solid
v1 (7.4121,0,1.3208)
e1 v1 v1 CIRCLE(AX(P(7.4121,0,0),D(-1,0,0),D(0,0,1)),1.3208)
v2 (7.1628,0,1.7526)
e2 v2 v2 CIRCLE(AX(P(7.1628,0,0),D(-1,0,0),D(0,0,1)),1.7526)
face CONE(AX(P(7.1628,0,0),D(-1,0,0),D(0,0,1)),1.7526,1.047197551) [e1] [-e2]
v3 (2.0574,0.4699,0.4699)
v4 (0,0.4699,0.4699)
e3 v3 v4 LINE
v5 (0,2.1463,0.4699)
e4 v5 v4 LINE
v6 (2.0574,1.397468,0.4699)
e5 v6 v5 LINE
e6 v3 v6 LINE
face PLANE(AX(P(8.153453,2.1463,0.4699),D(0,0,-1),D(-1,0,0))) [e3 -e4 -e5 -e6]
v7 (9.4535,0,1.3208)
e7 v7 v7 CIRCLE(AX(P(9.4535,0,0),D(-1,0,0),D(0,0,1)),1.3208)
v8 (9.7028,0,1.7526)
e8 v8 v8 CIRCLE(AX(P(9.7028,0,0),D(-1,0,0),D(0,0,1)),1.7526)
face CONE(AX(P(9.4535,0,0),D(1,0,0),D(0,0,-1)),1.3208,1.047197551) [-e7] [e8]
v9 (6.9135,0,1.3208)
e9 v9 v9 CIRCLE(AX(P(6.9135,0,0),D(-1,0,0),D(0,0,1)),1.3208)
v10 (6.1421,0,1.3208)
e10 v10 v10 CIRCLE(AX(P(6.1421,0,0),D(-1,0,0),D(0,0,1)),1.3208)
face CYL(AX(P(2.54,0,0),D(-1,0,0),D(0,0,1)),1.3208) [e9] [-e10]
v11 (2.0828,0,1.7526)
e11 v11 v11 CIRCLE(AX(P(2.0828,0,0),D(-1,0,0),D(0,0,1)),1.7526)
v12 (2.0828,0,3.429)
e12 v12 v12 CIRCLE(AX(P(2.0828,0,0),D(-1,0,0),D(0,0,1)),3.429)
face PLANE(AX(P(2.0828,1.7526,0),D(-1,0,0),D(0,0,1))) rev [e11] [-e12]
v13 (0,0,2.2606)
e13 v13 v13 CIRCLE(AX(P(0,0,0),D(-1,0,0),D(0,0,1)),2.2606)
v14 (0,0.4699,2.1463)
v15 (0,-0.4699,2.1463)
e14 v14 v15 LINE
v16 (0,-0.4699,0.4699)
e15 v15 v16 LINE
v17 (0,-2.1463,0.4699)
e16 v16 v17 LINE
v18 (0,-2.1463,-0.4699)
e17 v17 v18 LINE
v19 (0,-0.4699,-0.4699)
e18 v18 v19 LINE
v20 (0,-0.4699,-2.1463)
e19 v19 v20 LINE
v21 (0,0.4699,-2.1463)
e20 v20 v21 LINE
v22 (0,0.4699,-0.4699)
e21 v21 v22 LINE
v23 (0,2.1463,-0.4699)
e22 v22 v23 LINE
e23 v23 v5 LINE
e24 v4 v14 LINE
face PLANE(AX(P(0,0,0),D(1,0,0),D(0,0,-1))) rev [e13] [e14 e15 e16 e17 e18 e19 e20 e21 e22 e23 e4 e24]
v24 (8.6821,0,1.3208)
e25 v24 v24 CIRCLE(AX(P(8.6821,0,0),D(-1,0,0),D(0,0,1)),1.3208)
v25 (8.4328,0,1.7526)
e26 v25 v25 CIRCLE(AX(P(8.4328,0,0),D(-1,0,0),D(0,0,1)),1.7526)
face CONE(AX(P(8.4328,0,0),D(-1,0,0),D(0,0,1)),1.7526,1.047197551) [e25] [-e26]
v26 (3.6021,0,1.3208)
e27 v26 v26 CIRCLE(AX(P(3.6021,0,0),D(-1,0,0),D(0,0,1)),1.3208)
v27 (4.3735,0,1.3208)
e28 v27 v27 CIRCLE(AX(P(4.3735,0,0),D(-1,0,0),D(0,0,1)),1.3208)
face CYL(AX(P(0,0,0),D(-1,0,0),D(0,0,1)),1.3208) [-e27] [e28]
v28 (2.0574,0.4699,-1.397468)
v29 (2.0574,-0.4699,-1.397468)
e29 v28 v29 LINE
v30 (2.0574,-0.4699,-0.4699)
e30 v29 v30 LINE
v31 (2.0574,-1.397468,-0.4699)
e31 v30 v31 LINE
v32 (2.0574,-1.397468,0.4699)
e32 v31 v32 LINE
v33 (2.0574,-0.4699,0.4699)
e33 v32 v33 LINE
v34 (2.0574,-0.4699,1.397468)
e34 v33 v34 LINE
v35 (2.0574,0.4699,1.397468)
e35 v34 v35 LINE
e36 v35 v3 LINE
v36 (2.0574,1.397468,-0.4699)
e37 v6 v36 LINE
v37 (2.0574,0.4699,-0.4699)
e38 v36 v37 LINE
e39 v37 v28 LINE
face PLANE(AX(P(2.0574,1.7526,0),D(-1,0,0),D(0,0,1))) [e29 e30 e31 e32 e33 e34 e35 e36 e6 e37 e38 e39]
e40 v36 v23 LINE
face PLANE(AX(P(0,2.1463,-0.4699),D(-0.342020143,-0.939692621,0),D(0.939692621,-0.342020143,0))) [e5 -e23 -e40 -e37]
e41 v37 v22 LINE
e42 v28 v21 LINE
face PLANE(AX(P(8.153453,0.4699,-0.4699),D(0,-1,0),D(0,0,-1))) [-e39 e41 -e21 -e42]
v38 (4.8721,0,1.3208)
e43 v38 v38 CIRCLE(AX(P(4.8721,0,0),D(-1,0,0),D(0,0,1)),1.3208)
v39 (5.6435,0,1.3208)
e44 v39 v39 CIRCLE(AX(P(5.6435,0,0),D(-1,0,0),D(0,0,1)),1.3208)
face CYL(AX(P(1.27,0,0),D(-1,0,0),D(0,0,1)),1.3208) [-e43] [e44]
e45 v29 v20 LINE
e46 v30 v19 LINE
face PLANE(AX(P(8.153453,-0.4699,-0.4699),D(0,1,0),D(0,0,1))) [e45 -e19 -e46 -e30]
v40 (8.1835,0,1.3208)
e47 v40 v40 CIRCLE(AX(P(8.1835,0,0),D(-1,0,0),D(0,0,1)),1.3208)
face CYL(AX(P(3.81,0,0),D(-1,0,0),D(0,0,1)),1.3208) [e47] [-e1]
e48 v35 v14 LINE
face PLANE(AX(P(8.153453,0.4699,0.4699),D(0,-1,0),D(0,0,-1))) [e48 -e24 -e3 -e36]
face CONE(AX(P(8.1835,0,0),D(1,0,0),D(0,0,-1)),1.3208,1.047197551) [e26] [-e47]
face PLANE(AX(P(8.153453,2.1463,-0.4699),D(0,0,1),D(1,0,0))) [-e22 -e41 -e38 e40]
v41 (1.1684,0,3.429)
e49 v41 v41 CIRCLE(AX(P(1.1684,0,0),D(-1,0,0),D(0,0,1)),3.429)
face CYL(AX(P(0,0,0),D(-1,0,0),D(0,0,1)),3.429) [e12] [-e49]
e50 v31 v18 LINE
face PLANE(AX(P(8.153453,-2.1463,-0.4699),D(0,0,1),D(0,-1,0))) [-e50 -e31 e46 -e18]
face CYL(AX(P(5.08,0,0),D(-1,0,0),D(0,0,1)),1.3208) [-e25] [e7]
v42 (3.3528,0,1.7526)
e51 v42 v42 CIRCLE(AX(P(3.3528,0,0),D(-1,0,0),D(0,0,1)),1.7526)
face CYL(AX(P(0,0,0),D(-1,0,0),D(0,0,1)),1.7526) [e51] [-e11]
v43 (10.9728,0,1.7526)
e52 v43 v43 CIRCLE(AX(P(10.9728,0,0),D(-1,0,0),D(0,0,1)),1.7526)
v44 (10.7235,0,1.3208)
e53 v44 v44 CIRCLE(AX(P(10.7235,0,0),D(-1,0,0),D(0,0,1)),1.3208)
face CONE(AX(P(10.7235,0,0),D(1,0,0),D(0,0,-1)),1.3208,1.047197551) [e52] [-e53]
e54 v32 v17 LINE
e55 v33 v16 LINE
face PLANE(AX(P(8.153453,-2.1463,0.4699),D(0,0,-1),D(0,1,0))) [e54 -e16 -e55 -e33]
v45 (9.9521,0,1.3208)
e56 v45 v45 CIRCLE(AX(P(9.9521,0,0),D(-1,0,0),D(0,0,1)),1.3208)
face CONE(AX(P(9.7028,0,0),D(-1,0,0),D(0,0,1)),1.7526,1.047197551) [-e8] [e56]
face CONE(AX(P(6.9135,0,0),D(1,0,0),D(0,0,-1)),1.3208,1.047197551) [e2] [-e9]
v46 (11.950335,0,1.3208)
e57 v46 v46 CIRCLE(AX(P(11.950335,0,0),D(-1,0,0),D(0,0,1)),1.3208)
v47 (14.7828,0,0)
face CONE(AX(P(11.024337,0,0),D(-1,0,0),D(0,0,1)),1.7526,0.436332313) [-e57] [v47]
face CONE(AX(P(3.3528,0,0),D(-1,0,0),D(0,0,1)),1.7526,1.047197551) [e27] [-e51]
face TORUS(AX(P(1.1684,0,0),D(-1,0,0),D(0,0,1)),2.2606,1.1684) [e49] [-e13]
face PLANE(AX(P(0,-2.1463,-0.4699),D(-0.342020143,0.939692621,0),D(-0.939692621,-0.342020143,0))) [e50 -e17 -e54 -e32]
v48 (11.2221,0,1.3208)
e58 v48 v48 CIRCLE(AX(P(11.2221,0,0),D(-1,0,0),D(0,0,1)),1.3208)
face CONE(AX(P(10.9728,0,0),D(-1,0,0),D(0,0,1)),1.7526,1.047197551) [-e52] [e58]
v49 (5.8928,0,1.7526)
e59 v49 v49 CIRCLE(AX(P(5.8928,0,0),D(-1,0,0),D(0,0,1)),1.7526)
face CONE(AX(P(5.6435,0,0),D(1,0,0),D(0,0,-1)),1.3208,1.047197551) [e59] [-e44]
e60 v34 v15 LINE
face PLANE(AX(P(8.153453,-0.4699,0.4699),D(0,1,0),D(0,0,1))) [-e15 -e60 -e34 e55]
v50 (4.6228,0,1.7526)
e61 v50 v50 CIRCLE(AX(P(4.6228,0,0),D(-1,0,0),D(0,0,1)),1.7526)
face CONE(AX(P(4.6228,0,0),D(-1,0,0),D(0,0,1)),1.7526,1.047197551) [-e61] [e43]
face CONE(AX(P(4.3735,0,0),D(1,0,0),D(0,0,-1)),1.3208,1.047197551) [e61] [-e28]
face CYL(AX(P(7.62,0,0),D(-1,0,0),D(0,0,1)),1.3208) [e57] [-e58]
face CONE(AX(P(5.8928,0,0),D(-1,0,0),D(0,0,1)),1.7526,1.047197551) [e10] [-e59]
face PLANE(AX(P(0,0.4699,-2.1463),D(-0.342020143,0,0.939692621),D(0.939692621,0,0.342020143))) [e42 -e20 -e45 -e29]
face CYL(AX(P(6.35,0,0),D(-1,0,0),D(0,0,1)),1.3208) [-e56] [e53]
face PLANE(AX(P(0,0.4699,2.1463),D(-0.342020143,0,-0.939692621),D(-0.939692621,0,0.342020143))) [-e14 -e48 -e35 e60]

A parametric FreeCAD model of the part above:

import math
import FreeCAD as App
import Part
import Sketcher
Q = App.Units.Quantity


def faces_at(feature, points):
    """Names of the faces that lie closest to the given points."""
    faces = feature.Shape.Faces
    near = lambda p: min(range(len(faces)), key=lambda i: faces[i].distToShape(Part.Vertex(*p))[0])
    return sorted({f"Face{near(p) + 1}" for p in points})


def add_polygon(sketch, points):
    """Adds a closed chain of lines whose ends are joined by coincident constraints."""
    first, n = sketch.GeometryCount, len(points)
    for a, b in zip(points, points[1:] + points[:1]):
        sketch.addGeometry(Part.LineSegment(App.Vector(*a, 0), App.Vector(*b, 0)), False)
    for i in range(n):
        sketch.addConstraint(Sketcher.Constraint("Coincident", first + i, 2, first + (i + 1) % n, 1))

doc = App.newDocument("Part")
body = doc.addObject("PartDesign::Body", "Body")

sketch1 = body.newObject("Sketcher::SketchObject", "Sketch")
sketch1.AttachmentSupport = (doc.getObject("XY_Plane"), [""])
sketch1.MapMode = "FlatFace"
sketch1.addGeometry([
    Part.LineSegment(App.Vector(0, 2.3, 0), App.Vector(0, 0, 0)),
    Part.LineSegment(App.Vector(0, 0, 0), App.Vector(14.8, 0, 0)),
    Part.LineSegment(App.Vector(14.8, 0, 0), App.Vector(14.8, 1.8, 0)),
    Part.LineSegment(App.Vector(14.8, 1.8, 0), App.Vector(2.1, 1.8, 0)),
    Part.LineSegment(App.Vector(2.1, 1.8, 0), App.Vector(2.1, 3.4, 0)),
    Part.LineSegment(App.Vector(2.1, 3.4, 0), App.Vector(1.2, 3.4, 0)),
    Part.ArcOfCircle(Part.Circle(App.Vector(1.2, 2.3, 0), App.Vector(0, 0, 1), 1.2), math.radians(90), math.radians(180)),
], False)
sketch1.addConstraint([
    Sketcher.Constraint("Coincident", 0, 2, 1, 1),
    Sketcher.Constraint("Coincident", 1, 2, 2, 1),
    Sketcher.Constraint("Coincident", 2, 2, 3, 1),
    Sketcher.Constraint("Coincident", 3, 2, 4, 1),
    Sketcher.Constraint("Coincident", 4, 2, 5, 1),
    Sketcher.Constraint("Tangent", 5, 2, 6, 1),
    Sketcher.Constraint("Tangent", 6, 2, 0, 1),
    Sketcher.Constraint("Vertical", 0),
    Sketcher.Constraint("Horizontal", 1),
    Sketcher.Constraint("Vertical", 2),
    Sketcher.Constraint("Horizontal", 3),
    Sketcher.Constraint("Vertical", 4),
    Sketcher.Constraint("Horizontal", 5),
    Sketcher.Constraint("Coincident", 0, 2, -1, 1),
    Sketcher.Constraint("DistanceX", 3, 2, 3, 1, Q("0.5 in")),
    Sketcher.Constraint("Radius", 6, Q("0.046 in")),
    Sketcher.Constraint("DistanceX", 1, 1, 1, 2, Q("0.582 in")),
    Sketcher.Constraint("DistanceY", 0, 2, 0, 1, Q("0.089 in")),
    Sketcher.Constraint("DistanceY", 2, 1, 2, 2, Q("0.069 in")),
])
revolution = body.newObject("PartDesign::Revolution", "Revolution")
revolution.Profile = sketch1
revolution.ReferenceAxis = (sketch1, ["H_Axis"])
revolution.Angle = 360

sketch2 = body.newObject("Sketcher::SketchObject", "Sketch001")
sketch2.AttachmentSupport = (doc.getObject("YZ_Plane"), [""])
sketch2.MapMode = "FlatFace"
add_polygon(sketch2, [(2.1, -0.5), (2.1, 0.5), (0.5, 0.5), (0.5, 2.1), (-0.5, 2.1), (-0.5, 0.5), (-2.1, 0.5), (-2.1, -0.5), (-0.5, -0.5), (-0.5, -2.1), (0.5, -2.1), (0.5, -0.5)])
sketch2.addConstraint([
    Sketcher.Constraint("Vertical", 0),
    Sketcher.Constraint("Horizontal", 1),
    Sketcher.Constraint("Vertical", 2),
    Sketcher.Constraint("Horizontal", 3),
    Sketcher.Constraint("Vertical", 4),
    Sketcher.Constraint("Horizontal", 5),
    Sketcher.Constraint("Vertical", 6),
    Sketcher.Constraint("Horizontal", 7),
    Sketcher.Constraint("Vertical", 8),
    Sketcher.Constraint("Horizontal", 9),
    Sketcher.Constraint("Vertical", 10),
    Sketcher.Constraint("Horizontal", 11),
    Sketcher.Constraint("Symmetric", 0, 2, 6, 2, -1, 1),
    Sketcher.Constraint("Symmetric", 2, 2, 8, 2, -1, 1),
    Sketcher.Constraint("Symmetric", 4, 2, 10, 2, -1, 1),
    Sketcher.Constraint("Symmetric", 1, 2, 4, 2, -2),
    Sketcher.Constraint("Equal", 9, 0),
    Sketcher.Constraint("Equal", 11, 2),
    Sketcher.Constraint("DistanceX", 1, 2, 1, 1, Q("0.066 in")),
    Sketcher.Constraint("DistanceX", 3, 2, 3, 1, Q("0.037 in")),
])
pocket1 = body.newObject("PartDesign::Pocket", "Pocket")
pocket1.Profile = sketch2
pocket1.Length = Q("0.081 in")
pocket1.Reversed = True
doc.recompute()

draft = body.newObject("PartDesign::Draft", "Draft")
draft.Base = (pocket1, faces_at(pocket1, [
    (1.029, 0, -2.146),
    (1.029, -2.146, 0),
    (1.029, 0, 2.146),
    (1.029, 2.146, 0),
]))
draft.NeutralPlane = (doc.getObject("YZ_Plane"), [""])
draft.Angle = 20
draft.Reversed = True

sketch3 = body.newObject("Sketcher::SketchObject", "Sketch002")
sketch3.AttachmentSupport = (doc.getObject("XY_Plane"), [""])
sketch3.MapMode = "FlatFace"
add_polygon(sketch3, [(3.35, 1.75), (3.6, 1.32), (4.37, 1.32), (4.62, 1.75)])
sketch3.addConstraint([
    Sketcher.Constraint("Horizontal", 1),
    Sketcher.Constraint("Horizontal", 3),
    Sketcher.Constraint("Equal", 0, 2),
    Sketcher.Constraint("Angle", 0, Q("-60 deg")),
    Sketcher.Constraint("DistanceX", 3, 2, 3, 1, Q("0.05 in")),
    Sketcher.Constraint("DistanceY", -1, 1, 0, 2, Q("0.052 in")),
    Sketcher.Constraint("DistanceX", -1, 1, 2, 2, Q("0.182 in")),
    Sketcher.Constraint("DistanceY", -1, 1, 2, 2, Q("0.069 in")),
])
groove = body.newObject("PartDesign::Groove", "Groove")
groove.Profile = sketch3
groove.ReferenceAxis = (sketch3, ["H_Axis"])
groove.Angle = 360
doc.recompute()

linearpattern = body.newObject("PartDesign::LinearPattern", "LinearPattern")
linearpattern.Originals = [groove]
linearpattern.Direction = (doc.getObject("X_Axis"), [""])
linearpattern.Mode = "offset"
linearpattern.Offset = Q("0.05 in")
linearpattern.Occurrences = 9
body.Tip = linearpattern

sketch4 = body.newObject("Sketcher::SketchObject", "Sketch003")
sketch4.AttachmentSupport = (doc.getObject("XY_Plane"), [""])
sketch4.MapMode = "FlatFace"
add_polygon(sketch4, [(11.02, 1.75), (14.78, 0), (14.97, 0), (14.97, 1.75)])
sketch4.addConstraint([
    Sketcher.Constraint("Horizontal", 1),
    Sketcher.Constraint("Vertical", 2),
    Sketcher.Constraint("Horizontal", 3),
    Sketcher.Constraint("PointOnObject", 0, 2, -1),
    Sketcher.Constraint("Angle", 0, Q("-25 deg")),
    Sketcher.Constraint("DistanceY", 2, 1, 2, 2, Q("0.069 in")),
    Sketcher.Constraint("DistanceX", -1, 1, 0, 2, Q("0.582 in")),
    Sketcher.Constraint("DistanceX", 1, 1, 1, 2, Q("0.184454 mm")),
])
groove2 = body.newObject("PartDesign::Groove", "Groove001")
groove2.Profile = sketch4
groove2.ReferenceAxis = (sketch4, ["H_Axis"])
groove2.Angle = 360

doc.recompute()
